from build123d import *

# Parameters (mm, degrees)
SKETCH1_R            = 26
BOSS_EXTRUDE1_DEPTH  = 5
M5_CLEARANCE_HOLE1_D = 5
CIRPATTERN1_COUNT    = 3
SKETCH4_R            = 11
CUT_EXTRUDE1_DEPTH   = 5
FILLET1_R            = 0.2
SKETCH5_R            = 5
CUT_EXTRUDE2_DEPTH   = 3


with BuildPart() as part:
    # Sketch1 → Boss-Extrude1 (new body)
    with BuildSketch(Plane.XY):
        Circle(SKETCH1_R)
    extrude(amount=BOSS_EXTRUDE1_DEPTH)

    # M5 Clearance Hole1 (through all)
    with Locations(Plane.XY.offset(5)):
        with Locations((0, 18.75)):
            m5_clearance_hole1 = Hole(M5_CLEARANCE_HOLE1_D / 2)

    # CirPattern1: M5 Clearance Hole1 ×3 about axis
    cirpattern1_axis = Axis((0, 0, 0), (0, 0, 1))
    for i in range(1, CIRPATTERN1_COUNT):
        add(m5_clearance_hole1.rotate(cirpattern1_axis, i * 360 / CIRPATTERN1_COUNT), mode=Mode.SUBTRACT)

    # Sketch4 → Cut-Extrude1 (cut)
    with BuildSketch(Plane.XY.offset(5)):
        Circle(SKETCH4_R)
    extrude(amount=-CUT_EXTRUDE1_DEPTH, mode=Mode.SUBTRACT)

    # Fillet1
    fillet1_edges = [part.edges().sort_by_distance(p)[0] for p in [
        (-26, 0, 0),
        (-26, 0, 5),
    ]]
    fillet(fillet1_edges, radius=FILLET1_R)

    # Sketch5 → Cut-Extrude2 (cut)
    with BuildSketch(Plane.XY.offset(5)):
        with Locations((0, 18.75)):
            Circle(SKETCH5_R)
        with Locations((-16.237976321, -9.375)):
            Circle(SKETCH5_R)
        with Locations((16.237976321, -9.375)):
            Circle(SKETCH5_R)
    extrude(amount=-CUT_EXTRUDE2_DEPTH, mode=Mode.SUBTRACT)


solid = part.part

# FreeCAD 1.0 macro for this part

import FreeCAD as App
import Part
import Sketcher
from FreeCAD import Vector


def edges_at(feature, points):
    """Names of the edges that pass closest to the given points."""
    edges = feature.Shape.Edges
    near = lambda p: min(range(len(edges)), key=lambda i: edges[i].distToShape(Part.Vertex(*p))[0])
    return sorted({f"Edge{near(p) + 1}" for p in points})

doc = App.newDocument("Part")
body = doc.addObject("PartDesign::Body", "Body")

# Sketch on XY plane
sketch1 = body.newObject("Sketcher::SketchObject", "Sketch")
sketch1.AttachmentSupport = (doc.getObject("XY_Plane"), [""])
sketch1.MapMode = "FlatFace"
sketch1.addGeometry(Part.Circle(Vector(0, 0, 0), Vector(0, 0, 1), 26), False)
sketch1.addConstraint([
    Sketcher.Constraint("Coincident", 0, 3, -1, 1),
    Sketcher.Constraint("Diameter", 0, 52.0),
])
pad1 = body.newObject("PartDesign::Pad", "Pad")
pad1.Profile = sketch1
pad1.Length = 5

# Sketch on XY plane
sketch2 = body.newObject("Sketcher::SketchObject", "Sketch001")
sketch2.AttachmentSupport = (doc.getObject("XY_Plane"), [""])
sketch2.MapMode = "FlatFace"
sketch2.AttachmentOffset = App.Placement(Vector(0, 0, 5), App.Rotation())
sketch2.addGeometry(Part.Circle(Vector(0, 18.8, 0), Vector(0, 0, 1), 2.5), False)
sketch2.addConstraint([
    Sketcher.Constraint("PointOnObject", 0, 3, -2),
    Sketcher.Constraint("Diameter", 0, 5.0),
    Sketcher.Constraint("DistanceY", -1, 1, 0, 3, 18.75),
])
doc.recompute()
hole = body.newObject("PartDesign::Hole", "Hole")
hole.Profile = sketch2
hole.ThreadType = "None"
hole.Diameter = 5
hole.DepthType = "ThroughAll"
doc.recompute()

polarpattern = body.newObject("PartDesign::PolarPattern", "PolarPattern")
polarpattern.Originals = [hole]
polarpattern.Axis = (doc.getObject("Z_Axis"), [""])
polarpattern.Angle = 360
polarpattern.Occurrences = 3
body.Tip = polarpattern

# Sketch on XY plane
sketch3 = body.newObject("Sketcher::SketchObject", "Sketch002")
sketch3.AttachmentSupport = (doc.getObject("XY_Plane"), [""])
sketch3.MapMode = "FlatFace"
sketch3.AttachmentOffset = App.Placement(Vector(0, 0, 5), App.Rotation())
sketch3.addGeometry(Part.Circle(Vector(0, 0, 0), Vector(0, 0, 1), 11), False)
sketch3.addConstraint([
    Sketcher.Constraint("Coincident", 0, 3, -1, 1),
    Sketcher.Constraint("Diameter", 0, 22.0),
])
pocket1 = body.newObject("PartDesign::Pocket", "Pocket")
pocket1.Profile = sketch3
pocket1.Length = 5
doc.recompute()

fillet = body.newObject("PartDesign::Fillet", "Fillet")
fillet.Base = (pocket1, edges_at(pocket1, [(-26, 0, 0), (-26, 0, 5)]))
fillet.Radius = 0.2

# Sketch on XY plane
sketch4 = body.newObject("Sketcher::SketchObject", "Sketch003")
sketch4.AttachmentSupport = (doc.getObject("XY_Plane"), [""])
sketch4.MapMode = "FlatFace"
sketch4.AttachmentOffset = App.Placement(Vector(0, 0, 5), App.Rotation())
sketch4.addGeometry([
    Part.Circle(Vector(0, 19, 0), Vector(0, 0, 1), 5),
    Part.Circle(Vector(-16, -9, 0), Vector(0, 0, 1), 5),
    Part.Circle(Vector(16, -9, 0), Vector(0, 0, 1), 5),
], False)
sketch4.addConstraint([
    Sketcher.Constraint("Equal", 0, 1),
    Sketcher.Constraint("Equal", 1, 2),
    Sketcher.Constraint("Symmetric", 1, 3, 2, 3, -2),
    Sketcher.Constraint("PointOnObject", 0, 3, -2),
    Sketcher.Constraint("Diameter", 0, 10.0),
    Sketcher.Constraint("DistanceY", -1, 1, 0, 3, 18.75),
    Sketcher.Constraint("DistanceY", 1, 3, -1, 1, 9.375),
    Sketcher.Constraint("DistanceX", 1, 3, -1, 1, 16.237976),
])
pocket2 = body.newObject("PartDesign::Pocket", "Pocket001")
pocket2.Profile = sketch4
pocket2.Length = 3

doc.recompute()
